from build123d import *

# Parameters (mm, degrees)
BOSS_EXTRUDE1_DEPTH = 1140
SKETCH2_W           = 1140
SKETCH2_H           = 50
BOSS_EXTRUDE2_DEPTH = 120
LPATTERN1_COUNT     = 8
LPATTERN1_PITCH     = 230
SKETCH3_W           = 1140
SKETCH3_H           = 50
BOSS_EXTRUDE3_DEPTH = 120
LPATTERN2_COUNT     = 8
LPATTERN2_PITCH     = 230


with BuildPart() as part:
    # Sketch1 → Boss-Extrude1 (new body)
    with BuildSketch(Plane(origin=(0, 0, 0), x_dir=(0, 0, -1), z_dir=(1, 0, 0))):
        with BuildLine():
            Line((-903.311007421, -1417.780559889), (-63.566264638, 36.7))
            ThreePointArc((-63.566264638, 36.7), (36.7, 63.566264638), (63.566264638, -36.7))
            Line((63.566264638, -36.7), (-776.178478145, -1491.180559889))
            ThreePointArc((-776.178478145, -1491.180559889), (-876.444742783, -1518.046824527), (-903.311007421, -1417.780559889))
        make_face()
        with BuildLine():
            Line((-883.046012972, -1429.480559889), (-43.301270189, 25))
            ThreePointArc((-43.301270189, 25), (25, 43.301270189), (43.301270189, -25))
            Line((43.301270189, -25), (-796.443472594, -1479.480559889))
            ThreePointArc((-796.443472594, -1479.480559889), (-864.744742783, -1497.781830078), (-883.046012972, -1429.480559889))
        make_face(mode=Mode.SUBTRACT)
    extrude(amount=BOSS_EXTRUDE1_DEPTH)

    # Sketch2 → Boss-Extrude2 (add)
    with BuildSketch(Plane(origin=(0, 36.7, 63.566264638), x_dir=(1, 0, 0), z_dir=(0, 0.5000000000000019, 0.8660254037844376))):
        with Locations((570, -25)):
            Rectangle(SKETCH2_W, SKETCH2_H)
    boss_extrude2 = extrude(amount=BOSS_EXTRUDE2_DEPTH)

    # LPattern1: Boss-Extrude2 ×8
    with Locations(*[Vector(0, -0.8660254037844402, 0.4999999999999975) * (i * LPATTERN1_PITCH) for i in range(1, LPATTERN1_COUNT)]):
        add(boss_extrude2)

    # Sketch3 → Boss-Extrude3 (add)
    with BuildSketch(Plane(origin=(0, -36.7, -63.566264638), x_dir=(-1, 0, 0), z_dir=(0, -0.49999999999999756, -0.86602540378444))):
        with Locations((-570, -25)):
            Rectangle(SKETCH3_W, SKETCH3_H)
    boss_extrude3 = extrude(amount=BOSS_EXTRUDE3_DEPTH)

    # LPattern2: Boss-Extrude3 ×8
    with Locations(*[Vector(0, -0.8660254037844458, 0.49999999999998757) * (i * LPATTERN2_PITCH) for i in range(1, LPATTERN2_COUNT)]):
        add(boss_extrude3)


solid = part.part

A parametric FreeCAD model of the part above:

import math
import FreeCAD as App
import Part
import Sketcher
from FreeCAD import Vector
Q = App.Units.Quantity

doc = App.newDocument("Part")
params = doc.addObject("Spreadsheet::Sheet", "Params")
for row, (alias, value) in enumerate([
    ("sketch1_radius", "50 mm"),
    ("sketch1_radius2", "73.4 mm"),
    ("pad1_length", "1140 mm"),
    ("sketch2_width", "1140 mm"),
    ("sketch2_height", "50 mm"),
    ("pad2_length", "120 mm"),
    ("linearpattern_pitch", "230 mm"),
    ("sketch3_width", "1140 mm"),
    ("sketch3_height", "50 mm"),
    ("pad3_length", "120 mm"),
    ("linearpattern2_pitch", "230 mm"),
], start=1):
    params.set(f"A{row}", alias)
    params.set(f"B{row}", "=" + value)
    params.setAlias(f"B{row}", alias)

body = doc.addObject("PartDesign::Body", "Body")

sketch1 = body.newObject("Sketcher::SketchObject", "Sketch")
sketch1.AttachmentSupport = (doc.getObject("YZ_Plane"), [""])
sketch1.MapMode = "FlatFace"
sketch1.addGeometry(Part.LineSegment(Vector(37, 64, 0), Vector(-1418, 903, 0)), False)
sketch1.addGeometry(Part.ArcOfCircle(Part.Circle(Vector(-1454, 840, 0), Vector(0, 0, 1), 73), math.radians(60), math.radians(240)), False)
sketch1.addGeometry(Part.LineSegment(Vector(-1491, 776, 0), Vector(-37, -64, 0)), False)
sketch1.addGeometry(Part.ArcOfCircle(Part.Circle(Vector(0, 0, 0), Vector(0, 0, 1), 73), math.radians(-120), math.radians(60)), False)
sketch1.addGeometry(Part.LineSegment(Vector(-1429, 883, 0), Vector(25, 43, 0)), False)
sketch1.addGeometry(Part.ArcOfCircle(Part.Circle(Vector(0, 0, 0), Vector(0, 0, 1), 50), math.radians(-120), math.radians(60)), False)
sketch1.addGeometry(Part.LineSegment(Vector(-25, -43, 0), Vector(-1479, 796, 0)), False)
sketch1.addGeometry(Part.ArcOfCircle(Part.Circle(Vector(-1454, 840, 0), Vector(0, 0, 1), 50), math.radians(60), math.radians(240)), False)
sketch1.addConstraint(Sketcher.Constraint("Tangent", 0, 2, 1, 1))
sketch1.addConstraint(Sketcher.Constraint("Tangent", 1, 2, 2, 1))
sketch1.addConstraint(Sketcher.Constraint("Tangent", 2, 2, 3, 1))
sketch1.addConstraint(Sketcher.Constraint("Tangent", 3, 2, 0, 1))
sketch1.addConstraint(Sketcher.Constraint("Tangent", 4, 2, 5, 2))
sketch1.addConstraint(Sketcher.Constraint("Tangent", 5, 1, 6, 1))
sketch1.addConstraint(Sketcher.Constraint("Tangent", 6, 2, 7, 2))
sketch1.addConstraint(Sketcher.Constraint("Tangent", 7, 1, 4, 1))
sketch1.addConstraint(Sketcher.Constraint("Coincident", 3, 3, -1, 1))
sketch1.addConstraint(Sketcher.Constraint("Coincident", 5, 3, -1, 1))
sketch1.addConstraint(Sketcher.Constraint("Coincident", 7, 3, 1, 3))
sketch1.addConstraint(Sketcher.Constraint("Equal", 1, 3))
sketch1.addConstraint(Sketcher.Constraint("Equal", 5, 7))
sketch1.addConstraint(Sketcher.Constraint("Radius", 5, Q("50 mm")))
sketch1.addConstraint(Sketcher.Constraint("Radius", 1, Q("73.4 mm")))
sketch1.addConstraint(Sketcher.Constraint("Angle", 0, Q("150 deg")))
sketch1.addConstraint(Sketcher.Constraint("DistanceX", 1, 3, -1, 1, Q("1454.48056 mm")))
sketch1.setExpression("Constraints[13]", "Params.sketch1_radius")
sketch1.setExpression("Constraints[14]", "Params.sketch1_radius2")
pad1 = body.newObject("PartDesign::Pad", "Pad")
pad1.Profile = sketch1
pad1.setExpression("Length", "Params.pad1_length")

sketch2 = body.newObject("Sketcher::SketchObject", "Sketch001")
sketch2.Placement = App.Placement(Vector(0, 36.7, 63.566265), App.Rotation(Vector(1, 0, 0), Vector(0, 0.866025404, -0.5), Vector(0, 0.5, 0.866025404), "ZXY"))
sketch2.addGeometry(Part.LineSegment(Vector(0, 0, 0), Vector(0, -50, 0)), False)
sketch2.addGeometry(Part.LineSegment(Vector(0, -50, 0), Vector(1140, -50, 0)), False)
sketch2.addGeometry(Part.LineSegment(Vector(1140, -50, 0), Vector(1140, 0, 0)), False)
sketch2.addGeometry(Part.LineSegment(Vector(1140, 0, 0), Vector(0, 0, 0)), False)
sketch2.addConstraint(Sketcher.Constraint("Coincident", 0, 2, 1, 1))
sketch2.addConstraint(Sketcher.Constraint("Coincident", 1, 2, 2, 1))
sketch2.addConstraint(Sketcher.Constraint("Coincident", 2, 2, 3, 1))
sketch2.addConstraint(Sketcher.Constraint("Coincident", 3, 2, 0, 1))
sketch2.addConstraint(Sketcher.Constraint("Vertical", 0))
sketch2.addConstraint(Sketcher.Constraint("Horizontal", 1))
sketch2.addConstraint(Sketcher.Constraint("Vertical", 2))
sketch2.addConstraint(Sketcher.Constraint("Horizontal", 3))
sketch2.addConstraint(Sketcher.Constraint("Coincident", 3, 2, -1, 1))
sketch2.addConstraint(Sketcher.Constraint("DistanceX", 1, 1, 1, 2, Q("1140 mm")))
sketch2.addConstraint(Sketcher.Constraint("DistanceY", 0, 2, 0, 1, Q("50 mm")))
sketch2.setExpression("Constraints[9]", "Params.sketch2_width")
sketch2.setExpression("Constraints[10]", "Params.sketch2_height")
pad2 = body.newObject("PartDesign::Pad", "Pad001")
pad2.Profile = sketch2
pad2.setExpression("Length", "Params.pad2_length")
doc.recompute()

datumline = body.newObject("PartDesign::Line", "DatumLine")
datumline.Placement = App.Placement(Vector(0, 0, 0), App.Rotation(Vector(0, 0, 1), Vector(0, -0.866025404, 0.5)))
linearpattern = body.newObject("PartDesign::LinearPattern", "LinearPattern")
linearpattern.Originals = [pad2]
linearpattern.Direction = (datumline, [""])
linearpattern.Mode = "offset"
linearpattern.setExpression("Offset", "Params.linearpattern_pitch")
linearpattern.Occurrences = 8
body.Tip = linearpattern

sketch3 = body.newObject("Sketcher::SketchObject", "Sketch002")
sketch3.Placement = App.Placement(Vector(0, -36.7, -63.566265), App.Rotation(Vector(-1, 0, 0), Vector(0, 0.866025404, -0.5), Vector(0, -0.5, -0.866025404), "ZXY"))
sketch3.addGeometry(Part.LineSegment(Vector(-1140, 0, 0), Vector(-1140, -50, 0)), False)
sketch3.addGeometry(Part.LineSegment(Vector(-1140, -50, 0), Vector(0, -50, 0)), False)
sketch3.addGeometry(Part.LineSegment(Vector(0, -50, 0), Vector(0, 0, 0)), False)
sketch3.addGeometry(Part.LineSegment(Vector(0, 0, 0), Vector(-1140, 0, 0)), False)
sketch3.addConstraint(Sketcher.Constraint("Coincident", 0, 2, 1, 1))
sketch3.addConstraint(Sketcher.Constraint("Coincident", 1, 2, 2, 1))
sketch3.addConstraint(Sketcher.Constraint("Coincident", 2, 2, 3, 1))
sketch3.addConstraint(Sketcher.Constraint("Coincident", 3, 2, 0, 1))
sketch3.addConstraint(Sketcher.Constraint("Vertical", 0))
sketch3.addConstraint(Sketcher.Constraint("Horizontal", 1))
sketch3.addConstraint(Sketcher.Constraint("Vertical", 2))
sketch3.addConstraint(Sketcher.Constraint("Horizontal", 3))
sketch3.addConstraint(Sketcher.Constraint("Coincident", 2, 2, -1, 1))
sketch3.addConstraint(Sketcher.Constraint("DistanceX", 1, 1, 1, 2, Q("1140 mm")))
sketch3.addConstraint(Sketcher.Constraint("DistanceY", 0, 2, 0, 1, Q("50 mm")))
sketch3.setExpression("Constraints[9]", "Params.sketch3_width")
sketch3.setExpression("Constraints[10]", "Params.sketch3_height")
pad3 = body.newObject("PartDesign::Pad", "Pad002")
pad3.Profile = sketch3
pad3.setExpression("Length", "Params.pad3_length")
doc.recompute()

datumline2 = body.newObject("PartDesign::Line", "DatumLine001")
datumline2.Placement = App.Placement(Vector(0, 0, 0), App.Rotation(Vector(0, 0, 1), Vector(0, -0.866025404, 0.5)))
linearpattern2 = body.newObject("PartDesign::LinearPattern", "LinearPattern001")
linearpattern2.Originals = [pad3]
linearpattern2.Direction = (datumline2, [""])
linearpattern2.Mode = "offset"
linearpattern2.setExpression("Offset", "Params.linearpattern2_pitch")
linearpattern2.Occurrences = 8
body.Tip = linearpattern2

doc.recompute()
